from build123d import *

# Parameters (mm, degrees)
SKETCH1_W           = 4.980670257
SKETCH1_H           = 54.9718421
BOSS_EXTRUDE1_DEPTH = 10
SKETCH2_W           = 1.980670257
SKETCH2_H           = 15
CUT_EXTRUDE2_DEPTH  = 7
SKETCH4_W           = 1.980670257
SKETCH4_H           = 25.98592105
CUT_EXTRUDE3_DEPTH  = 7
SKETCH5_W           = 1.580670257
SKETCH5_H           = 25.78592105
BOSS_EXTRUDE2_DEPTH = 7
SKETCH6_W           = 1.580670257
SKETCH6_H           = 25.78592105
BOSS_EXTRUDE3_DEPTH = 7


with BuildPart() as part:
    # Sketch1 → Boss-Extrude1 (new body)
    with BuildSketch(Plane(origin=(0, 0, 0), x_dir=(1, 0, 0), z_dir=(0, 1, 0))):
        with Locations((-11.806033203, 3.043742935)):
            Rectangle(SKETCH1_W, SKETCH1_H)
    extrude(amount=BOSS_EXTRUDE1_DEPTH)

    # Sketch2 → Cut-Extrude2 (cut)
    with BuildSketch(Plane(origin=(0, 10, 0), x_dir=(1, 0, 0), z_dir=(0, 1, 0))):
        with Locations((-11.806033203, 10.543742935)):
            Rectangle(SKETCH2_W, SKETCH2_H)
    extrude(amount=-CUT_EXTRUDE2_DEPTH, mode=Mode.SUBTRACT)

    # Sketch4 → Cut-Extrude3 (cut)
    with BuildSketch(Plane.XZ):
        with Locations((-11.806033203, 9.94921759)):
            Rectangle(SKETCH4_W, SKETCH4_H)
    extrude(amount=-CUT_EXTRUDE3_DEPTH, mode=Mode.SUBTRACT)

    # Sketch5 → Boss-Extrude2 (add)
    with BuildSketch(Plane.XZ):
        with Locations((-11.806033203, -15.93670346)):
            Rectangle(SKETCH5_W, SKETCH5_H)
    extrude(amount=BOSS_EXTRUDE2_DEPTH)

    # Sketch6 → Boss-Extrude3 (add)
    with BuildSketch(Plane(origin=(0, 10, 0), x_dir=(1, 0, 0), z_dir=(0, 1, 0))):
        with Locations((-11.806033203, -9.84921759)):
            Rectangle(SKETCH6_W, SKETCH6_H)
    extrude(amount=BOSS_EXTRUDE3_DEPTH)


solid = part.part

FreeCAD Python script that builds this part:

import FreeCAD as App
import Part
import Sketcher

V = App.Vector


def add_polygon(sketch, points):
    """Adds a closed chain of lines whose ends are joined by coincident constraints."""
    first, n = sketch.GeometryCount, len(points)
    for a, b in zip(points, points[1:] + points[:1]):
        sketch.addGeometry(Part.LineSegment(App.Vector(*a, 0), App.Vector(*b, 0)), False)
    for i in range(n):
        sketch.addConstraint(Sketcher.Constraint("Coincident", first + i, 2, first + (i + 1) % n, 1))

doc = App.newDocument("Part")
body = doc.addObject("PartDesign::Body", "Body")

sketch1 = body.newObject("Sketcher::SketchObject", "Sketch")
sketch1.AttachmentSupport = (doc.getObject("XZ_Plane"), [""])
sketch1.MapMode = "FlatFace"
add_polygon(sketch1, [(-14.296368, -30.529664), (-14.296368, 24.442178), (-9.315698, 24.442178), (-9.315698, -30.529664)])
sketch1.addConstraint(Sketcher.Constraint("Vertical", 0))
sketch1.addConstraint(Sketcher.Constraint("Horizontal", 1))
sketch1.addConstraint(Sketcher.Constraint("Vertical", 2))
sketch1.addConstraint(Sketcher.Constraint("Horizontal", 3))
sketch1.addConstraint(Sketcher.Constraint("DistanceX", 1, 1, 1, 2, 4.98067))
sketch1.addConstraint(Sketcher.Constraint("DistanceX", 1, 2, -1, 1, 9.315698))
sketch1.addConstraint(Sketcher.Constraint("DistanceY", 0, 1, 0, 2, 54.971842))
sketch1.addConstraint(Sketcher.Constraint("DistanceY", -1, 1, 0, 2, 24.442178))
pad1 = body.newObject("PartDesign::Pad", "Pad")
pad1.Profile = sketch1
pad1.Length = 10
pad1.Reversed = True

sketch2 = body.newObject("Sketcher::SketchObject", "Sketch001")
sketch2.AttachmentSupport = (doc.getObject("XZ_Plane"), [""])
sketch2.MapMode = "FlatFace"
sketch2.AttachmentOffset = App.Placement(V(0, 0, -10), App.Rotation())
add_polygon(sketch2, [(-12.796368, -18.043743), (-12.796368, -3.043743), (-10.815698, -3.043743), (-10.815698, -18.043743)])
sketch2.addConstraint(Sketcher.Constraint("Vertical", 0))
sketch2.addConstraint(Sketcher.Constraint("Horizontal", 1))
sketch2.addConstraint(Sketcher.Constraint("Vertical", 2))
sketch2.addConstraint(Sketcher.Constraint("Horizontal", 3))
sketch2.addConstraint(Sketcher.Constraint("DistanceY", 0, 1, 0, 2, 15.0))
sketch2.addConstraint(Sketcher.Constraint("DistanceX", 1, 1, 1, 2, 1.98067))
sketch2.addConstraint(Sketcher.Constraint("DistanceX", 1, 2, -1, 1, 10.815698))
sketch2.addConstraint(Sketcher.Constraint("DistanceY", 0, 2, -1, 1, 3.043743))
pocket1 = body.newObject("PartDesign::Pocket", "Pocket")
pocket1.Profile = sketch2
pocket1.Length = 7
pocket1.Reversed = True

sketch3 = body.newObject("Sketcher::SketchObject", "Sketch002")
sketch3.AttachmentSupport = (doc.getObject("XZ_Plane"), [""])
sketch3.MapMode = "FlatFace"
add_polygon(sketch3, [(-12.796368, 22.942178), (-12.796368, -3.043743), (-10.815698, -3.043743), (-10.815698, 22.942178)])
sketch3.addConstraint(Sketcher.Constraint("Vertical", 0))
sketch3.addConstraint(Sketcher.Constraint("Horizontal", 1))
sketch3.addConstraint(Sketcher.Constraint("Vertical", 2))
sketch3.addConstraint(Sketcher.Constraint("Horizontal", 3))
sketch3.addConstraint(Sketcher.Constraint("DistanceX", 1, 1, 1, 2, 1.98067))
sketch3.addConstraint(Sketcher.Constraint("DistanceY", 0, 2, 0, 1, 25.985921))
sketch3.addConstraint(Sketcher.Constraint("DistanceX", 1, 2, -1, 1, 10.815698))
sketch3.addConstraint(Sketcher.Constraint("DistanceY", -1, 1, 2, 2, 22.942178))
pocket2 = body.newObject("PartDesign::Pocket", "Pocket001")
pocket2.Profile = sketch3
pocket2.Length = 7

sketch4 = body.newObject("Sketcher::SketchObject", "Sketch003")
sketch4.AttachmentSupport = (doc.getObject("XZ_Plane"), [""])
sketch4.MapMode = "FlatFace"
add_polygon(sketch4, [(-12.596368, -3.043743), (-12.596368, -28.829664), (-11.015698, -28.829664), (-11.015698, -3.043743)])
sketch4.addConstraint(Sketcher.Constraint("Vertical", 0))
sketch4.addConstraint(Sketcher.Constraint("Horizontal", 1))
sketch4.addConstraint(Sketcher.Constraint("Vertical", 2))
sketch4.addConstraint(Sketcher.Constraint("Horizontal", 3))
sketch4.addConstraint(Sketcher.Constraint("DistanceX", 1, 1, 1, 2, 1.58067))
sketch4.addConstraint(Sketcher.Constraint("DistanceY", 0, 2, 0, 1, 25.785921))
sketch4.addConstraint(Sketcher.Constraint("DistanceX", 1, 2, -1, 1, 11.015698))
sketch4.addConstraint(Sketcher.Constraint("DistanceY", 0, 2, -1, 1, 28.829664))
pad2 = body.newObject("PartDesign::Pad", "Pad001")
pad2.Profile = sketch4
pad2.Length = 7

sketch5 = body.newObject("Sketcher::SketchObject", "Sketch004")
sketch5.AttachmentSupport = (doc.getObject("XZ_Plane"), [""])
sketch5.MapMode = "FlatFace"
sketch5.AttachmentOffset = App.Placement(V(0, 0, -10), App.Rotation())
add_polygon(sketch5, [(-12.596368, -3.043743), (-12.596368, 22.742178), (-11.015698, 22.742178), (-11.015698, -3.043743)])
sketch5.addConstraint(Sketcher.Constraint("Vertical", 0))
sketch5.addConstraint(Sketcher.Constraint("Horizontal", 1))
sketch5.addConstraint(Sketcher.Constraint("Vertical", 2))
sketch5.addConstraint(Sketcher.Constraint("Horizontal", 3))
sketch5.addConstraint(Sketcher.Constraint("DistanceX", 1, 1, 1, 2, 1.58067))
sketch5.addConstraint(Sketcher.Constraint("DistanceY", 0, 1, 0, 2, 25.785921))
sketch5.addConstraint(Sketcher.Constraint("DistanceX", 1, 2, -1, 1, 11.015698))
sketch5.addConstraint(Sketcher.Constraint("DistanceY", -1, 1, 0, 2, 22.742178))
pad3 = body.newObject("PartDesign::Pad", "Pad002")
pad3.Profile = sketch5
pad3.Length = 7
pad3.Reversed = True

doc.recompute()
